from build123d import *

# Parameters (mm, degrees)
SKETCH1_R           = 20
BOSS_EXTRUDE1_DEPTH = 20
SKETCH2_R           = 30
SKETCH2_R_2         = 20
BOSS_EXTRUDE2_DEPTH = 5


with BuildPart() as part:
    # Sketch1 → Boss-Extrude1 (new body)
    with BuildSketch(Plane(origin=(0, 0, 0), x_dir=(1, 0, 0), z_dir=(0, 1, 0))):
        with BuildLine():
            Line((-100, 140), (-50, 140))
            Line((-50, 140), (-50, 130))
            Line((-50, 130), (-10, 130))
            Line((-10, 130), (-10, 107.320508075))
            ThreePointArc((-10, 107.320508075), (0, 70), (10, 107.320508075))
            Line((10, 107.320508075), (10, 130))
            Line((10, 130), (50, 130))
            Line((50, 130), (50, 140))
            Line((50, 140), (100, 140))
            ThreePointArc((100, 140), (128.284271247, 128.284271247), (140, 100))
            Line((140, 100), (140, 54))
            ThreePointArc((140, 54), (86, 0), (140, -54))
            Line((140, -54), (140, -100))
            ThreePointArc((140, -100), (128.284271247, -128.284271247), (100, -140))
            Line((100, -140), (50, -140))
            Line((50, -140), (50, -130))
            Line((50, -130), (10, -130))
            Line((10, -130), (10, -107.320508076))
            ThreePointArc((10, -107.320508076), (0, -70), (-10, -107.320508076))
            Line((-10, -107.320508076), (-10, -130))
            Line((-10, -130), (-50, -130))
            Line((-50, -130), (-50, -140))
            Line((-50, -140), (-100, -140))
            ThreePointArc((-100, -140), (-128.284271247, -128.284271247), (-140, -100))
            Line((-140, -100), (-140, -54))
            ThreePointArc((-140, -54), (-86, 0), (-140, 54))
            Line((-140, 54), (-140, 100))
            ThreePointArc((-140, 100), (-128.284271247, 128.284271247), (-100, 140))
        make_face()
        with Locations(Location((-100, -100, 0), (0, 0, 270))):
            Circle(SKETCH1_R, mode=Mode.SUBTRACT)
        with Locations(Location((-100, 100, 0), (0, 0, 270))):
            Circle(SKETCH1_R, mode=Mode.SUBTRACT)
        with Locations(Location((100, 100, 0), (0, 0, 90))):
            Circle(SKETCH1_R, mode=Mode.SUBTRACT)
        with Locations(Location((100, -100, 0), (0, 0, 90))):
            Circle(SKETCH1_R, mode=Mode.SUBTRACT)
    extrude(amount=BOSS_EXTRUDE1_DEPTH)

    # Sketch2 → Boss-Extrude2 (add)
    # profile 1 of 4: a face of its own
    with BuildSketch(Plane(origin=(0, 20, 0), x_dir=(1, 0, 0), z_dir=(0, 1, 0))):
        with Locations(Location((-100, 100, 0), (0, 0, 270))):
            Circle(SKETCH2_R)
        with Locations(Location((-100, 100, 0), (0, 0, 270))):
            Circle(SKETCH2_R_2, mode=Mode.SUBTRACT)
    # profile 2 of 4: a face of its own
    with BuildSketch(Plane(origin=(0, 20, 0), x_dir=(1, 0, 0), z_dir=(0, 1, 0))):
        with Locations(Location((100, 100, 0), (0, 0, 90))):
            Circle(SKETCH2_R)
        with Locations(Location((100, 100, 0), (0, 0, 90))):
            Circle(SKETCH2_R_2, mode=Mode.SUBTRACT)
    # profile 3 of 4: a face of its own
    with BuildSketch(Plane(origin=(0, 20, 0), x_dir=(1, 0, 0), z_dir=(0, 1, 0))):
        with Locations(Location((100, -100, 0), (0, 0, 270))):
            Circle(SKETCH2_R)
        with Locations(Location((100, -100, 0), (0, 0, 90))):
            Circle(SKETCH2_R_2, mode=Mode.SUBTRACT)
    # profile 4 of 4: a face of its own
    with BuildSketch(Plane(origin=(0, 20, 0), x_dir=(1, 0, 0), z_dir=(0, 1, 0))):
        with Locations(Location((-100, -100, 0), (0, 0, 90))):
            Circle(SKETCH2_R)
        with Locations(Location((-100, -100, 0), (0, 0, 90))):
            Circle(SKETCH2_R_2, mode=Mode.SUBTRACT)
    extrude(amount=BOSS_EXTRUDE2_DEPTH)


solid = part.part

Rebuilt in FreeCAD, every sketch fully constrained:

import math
import FreeCAD as App
import Part
import Sketcher

doc = App.newDocument("Part")
body = doc.addObject("PartDesign::Body", "Body")

# Sketch on XZ plane
sketch1 = body.newObject("Sketcher::SketchObject", "Sketch")
sketch1.AttachmentSupport = (doc.getObject("XZ_Plane"), [""])
sketch1.MapMode = "FlatFace"
sketch1.addGeometry([
    Part.LineSegment(App.Vector(-50, -140, 0), App.Vector(-100, -140, 0)),  # 0
    Part.ArcOfCircle(Part.Circle(App.Vector(-100, -100, 0), App.Vector(0, 0, 1), 40), math.radians(-180), math.radians(-90)),  # 1
    Part.LineSegment(App.Vector(-140, -100, 0), App.Vector(-140, -54, 0)),  # 2
    Part.ArcOfCircle(Part.Circle(App.Vector(-140, 0, 0), App.Vector(0, 0, 1), 54), math.radians(-90), math.radians(90)),  # 3
    Part.LineSegment(App.Vector(-140, 54, 0), App.Vector(-140, 100, 0)),  # 4
    Part.ArcOfCircle(Part.Circle(App.Vector(-100, 100, 0), App.Vector(0, 0, 1), 40), math.radians(90), math.radians(180)),  # 5
    Part.LineSegment(App.Vector(-100, 140, 0), App.Vector(-50, 140, 0)),  # 6
    Part.LineSegment(App.Vector(-50, 140, 0), App.Vector(-50, 130, 0)),  # 7
    Part.LineSegment(App.Vector(-50, 130, 0), App.Vector(-10, 130, 0)),  # 8
    Part.LineSegment(App.Vector(-10, 130, 0), App.Vector(-10, 107, 0)),  # 9
    Part.ArcOfCircle(Part.Circle(App.Vector(0, 90, 0), App.Vector(0, 0, 1), 20), math.radians(120), math.radians(420)),  # 10
    Part.LineSegment(App.Vector(10, 107, 0), App.Vector(10, 130, 0)),  # 11
    Part.LineSegment(App.Vector(10, 130, 0), App.Vector(50, 130, 0)),  # 12
    Part.LineSegment(App.Vector(50, 130, 0), App.Vector(50, 140, 0)),  # 13
    Part.LineSegment(App.Vector(50, 140, 0), App.Vector(100, 140, 0)),  # 14
    Part.ArcOfCircle(Part.Circle(App.Vector(100, 100, 0), App.Vector(0, 0, 1), 40), math.radians(0), math.radians(90)),  # 15
    Part.LineSegment(App.Vector(140, 100, 0), App.Vector(140, 54, 0)),  # 16
    Part.ArcOfCircle(Part.Circle(App.Vector(140, 0, 0), App.Vector(0, 0, 1), 54), math.radians(90), math.radians(270)),  # 17
    Part.LineSegment(App.Vector(140, -54, 0), App.Vector(140, -100, 0)),  # 18
    Part.ArcOfCircle(Part.Circle(App.Vector(100, -100, 0), App.Vector(0, 0, 1), 40), math.radians(-90), math.radians(0)),  # 19
    Part.LineSegment(App.Vector(100, -140, 0), App.Vector(50, -140, 0)),  # 20
    Part.LineSegment(App.Vector(50, -140, 0), App.Vector(50, -130, 0)),  # 21
    Part.LineSegment(App.Vector(50, -130, 0), App.Vector(10, -130, 0)),  # 22
    Part.LineSegment(App.Vector(10, -130, 0), App.Vector(10, -107, 0)),  # 23
    Part.ArcOfCircle(Part.Circle(App.Vector(0, -90, 0), App.Vector(0, 0, 1), 20), math.radians(-60), math.radians(240)),  # 24
    Part.LineSegment(App.Vector(-10, -107, 0), App.Vector(-10, -130, 0)),  # 25
    Part.LineSegment(App.Vector(-10, -130, 0), App.Vector(-50, -130, 0)),  # 26
    Part.LineSegment(App.Vector(-50, -130, 0), App.Vector(-50, -140, 0)),  # 27
    Part.Circle(App.Vector(100, 100, 0), App.Vector(0, 0, 1), 20),  # 28
    Part.Circle(App.Vector(-100, 100, 0), App.Vector(0, 0, 1), 20),  # 29
    Part.Circle(App.Vector(100, -100, 0), App.Vector(0, 0, 1), 20),  # 30
    Part.Circle(App.Vector(-100, -100, 0), App.Vector(0, 0, 1), 20),  # 31
], False)
sketch1.addConstraint([
    Sketcher.Constraint("Tangent", 0, 2, 1, 2),
    Sketcher.Constraint("Tangent", 1, 1, 2, 1),
    Sketcher.Constraint("Coincident", 2, 2, 3, 1),
    Sketcher.Constraint("Coincident", 3, 2, 4, 1),
    Sketcher.Constraint("Tangent", 4, 2, 5, 2),
    Sketcher.Constraint("Tangent", 5, 1, 6, 1),
    Sketcher.Constraint("Coincident", 6, 2, 7, 1),
    Sketcher.Constraint("Coincident", 7, 2, 8, 1),
    Sketcher.Constraint("Coincident", 8, 2, 9, 1),
    Sketcher.Constraint("Coincident", 9, 2, 10, 1),
    Sketcher.Constraint("Coincident", 10, 2, 11, 1),
    Sketcher.Constraint("Coincident", 11, 2, 12, 1),
    Sketcher.Constraint("Coincident", 12, 2, 13, 1),
    Sketcher.Constraint("Coincident", 13, 2, 14, 1),
    Sketcher.Constraint("Tangent", 14, 2, 15, 2),
    Sketcher.Constraint("Tangent", 15, 1, 16, 1),
    Sketcher.Constraint("Coincident", 16, 2, 17, 1),
    Sketcher.Constraint("Coincident", 17, 2, 18, 1),
    Sketcher.Constraint("Tangent", 18, 2, 19, 2),
    Sketcher.Constraint("Tangent", 19, 1, 20, 1),
    Sketcher.Constraint("Coincident", 20, 2, 21, 1),
    Sketcher.Constraint("Coincident", 21, 2, 22, 1),
    Sketcher.Constraint("Coincident", 22, 2, 23, 1),
    Sketcher.Constraint("Coincident", 23, 2, 24, 1),
    Sketcher.Constraint("Coincident", 24, 2, 25, 1),
    Sketcher.Constraint("Coincident", 25, 2, 26, 1),
    Sketcher.Constraint("Coincident", 26, 2, 27, 1),
    Sketcher.Constraint("Coincident", 27, 2, 0, 1),
    Sketcher.Constraint("Horizontal", 0),
    Sketcher.Constraint("Vertical", 2),
    Sketcher.Constraint("Vertical", 4),
    Sketcher.Constraint("Horizontal", 6),
    Sketcher.Constraint("Vertical", 7),
    Sketcher.Constraint("Horizontal", 8),
    Sketcher.Constraint("Vertical", 9),
    Sketcher.Constraint("Vertical", 11),
    Sketcher.Constraint("Horizontal", 12),
    Sketcher.Constraint("Vertical", 13),
    Sketcher.Constraint("Horizontal", 14),
    Sketcher.Constraint("Vertical", 16),
    Sketcher.Constraint("Vertical", 18),
    Sketcher.Constraint("Horizontal", 20),
    Sketcher.Constraint("Vertical", 21),
    Sketcher.Constraint("Horizontal", 22),
    Sketcher.Constraint("Vertical", 23),
    Sketcher.Constraint("Vertical", 25),
    Sketcher.Constraint("Horizontal", 26),
    Sketcher.Constraint("Vertical", 27),
    Sketcher.Constraint("Coincident", 28, 3, 15, 3),
    Sketcher.Constraint("Coincident", 29, 3, 5, 3),
    Sketcher.Constraint("Coincident", 30, 3, 19, 3),
    Sketcher.Constraint("Coincident", 31, 3, 1, 3),
    Sketcher.Constraint("Equal", 1, 5),
    Sketcher.Constraint("Equal", 5, 15),
    Sketcher.Constraint("Equal", 3, 17),
    Sketcher.Constraint("Equal", 15, 19),
    Sketcher.Constraint("Equal", 10, 24),
    Sketcher.Constraint("Equal", 24, 28),
    Sketcher.Constraint("Equal", 28, 29),
    Sketcher.Constraint("Equal", 29, 30),
    Sketcher.Constraint("Equal", 30, 31),
    Sketcher.Constraint("Symmetric", 1, 3, 15, 3, -1, 1),
    Sketcher.Constraint("Symmetric", 3, 3, 17, 3, -1, 1),
    Sketcher.Constraint("Symmetric", 5, 3, 19, 3, -1, 1),
    Sketcher.Constraint("Symmetric", 10, 3, 24, 3, -1, 1),
    Sketcher.Constraint("Symmetric", 7, 2, 21, 2, -1, 1),
    Sketcher.Constraint("Symmetric", 11, 2, 25, 2, -1, 1),
    Sketcher.Constraint("Symmetric", 5, 3, 15, 3, -2),
    Sketcher.Constraint("Symmetric", 9, 2, 10, 2, -2),
    Sketcher.Constraint("Symmetric", 7, 2, 12, 2, -2),
    Sketcher.Constraint("PointOnObject", 3, 3, -1),
    Sketcher.Constraint("Horizontal", 23, 2, 24, 2),
    Sketcher.Constraint("Vertical", 3, 3, 1, 1),
    Sketcher.Constraint("Vertical", 7, 2, 26, 2),
    Sketcher.Constraint("Diameter", 28, 40.0),
    Sketcher.Constraint("Radius", 1, 40.0),
    Sketcher.Constraint("Radius", 3, 54.0),
    Sketcher.Constraint("DistanceX", 0, 2, 0, 1, 50.0),
    Sketcher.Constraint("DistanceX", 8, 1, 8, 2, 40.0),
    Sketcher.Constraint("DistanceY", 2, 1, 2, 2, 46.0),
    Sketcher.Constraint("DistanceY", 7, 2, 7, 1, 10.0),
    Sketcher.Constraint("DistanceX", 1, 3, -1, 1, 100.0),
    Sketcher.Constraint("DistanceY", -1, 1, 10, 3, 90.0),
])
pad1 = body.newObject("PartDesign::Pad", "Pad")
pad1.Profile = sketch1
pad1.Length = 20
pad1.Reversed = True

# Sketch on XZ plane
sketch2 = body.newObject("Sketcher::SketchObject", "Sketch001")
sketch2.AttachmentSupport = (doc.getObject("XZ_Plane"), [""])
sketch2.MapMode = "FlatFace"
sketch2.AttachmentOffset = App.Placement(App.Vector(0, 0, -20), App.Rotation())
sketch2.addGeometry([
    Part.Circle(App.Vector(-100, -100, 0), App.Vector(0, 0, 1), 30),  # 0
    Part.Circle(App.Vector(-100, -100, 0), App.Vector(0, 0, 1), 20),  # 1
    Part.Circle(App.Vector(100, -100, 0), App.Vector(0, 0, 1), 30),  # 2
    Part.Circle(App.Vector(100, -100, 0), App.Vector(0, 0, 1), 20),  # 3
    Part.Circle(App.Vector(100, 100, 0), App.Vector(0, 0, 1), 30),  # 4
    Part.Circle(App.Vector(100, 100, 0), App.Vector(0, 0, 1), 20),  # 5
    Part.Circle(App.Vector(-100, 100, 0), App.Vector(0, 0, 1), 30),  # 6
    Part.Circle(App.Vector(-100, 100, 0), App.Vector(0, 0, 1), 20),  # 7
], False)
sketch2.addConstraint([
    Sketcher.Constraint("Coincident", 1, 3, 0, 3),
    Sketcher.Constraint("Coincident", 3, 3, 2, 3),
    Sketcher.Constraint("Coincident", 5, 3, 4, 3),
    Sketcher.Constraint("Coincident", 7, 3, 6, 3),
    Sketcher.Constraint("Equal", 0, 2),
    Sketcher.Constraint("Equal", 1, 3),
    Sketcher.Constraint("Equal", 2, 4),
    Sketcher.Constraint("Equal", 3, 5),
    Sketcher.Constraint("Equal", 4, 6),
    Sketcher.Constraint("Equal", 5, 7),
    Sketcher.Constraint("Symmetric", 0, 3, 4, 3, -1, 1),
    Sketcher.Constraint("Symmetric", 2, 3, 6, 3, -1, 1),
    Sketcher.Constraint("Symmetric", 0, 3, 2, 3, -2),
    Sketcher.Constraint("Diameter", 0, 60.0),
    Sketcher.Constraint("Diameter", 1, 40.0),
    Sketcher.Constraint("DistanceX", 0, 3, -1, 1, 100.0),
    Sketcher.Constraint("DistanceY", 0, 3, -1, 1, 100.0),
])
pad2 = body.newObject("PartDesign::Pad", "Pad001")
pad2.Profile = sketch2
pad2.Length = 5
pad2.Reversed = True

doc.recompute()
